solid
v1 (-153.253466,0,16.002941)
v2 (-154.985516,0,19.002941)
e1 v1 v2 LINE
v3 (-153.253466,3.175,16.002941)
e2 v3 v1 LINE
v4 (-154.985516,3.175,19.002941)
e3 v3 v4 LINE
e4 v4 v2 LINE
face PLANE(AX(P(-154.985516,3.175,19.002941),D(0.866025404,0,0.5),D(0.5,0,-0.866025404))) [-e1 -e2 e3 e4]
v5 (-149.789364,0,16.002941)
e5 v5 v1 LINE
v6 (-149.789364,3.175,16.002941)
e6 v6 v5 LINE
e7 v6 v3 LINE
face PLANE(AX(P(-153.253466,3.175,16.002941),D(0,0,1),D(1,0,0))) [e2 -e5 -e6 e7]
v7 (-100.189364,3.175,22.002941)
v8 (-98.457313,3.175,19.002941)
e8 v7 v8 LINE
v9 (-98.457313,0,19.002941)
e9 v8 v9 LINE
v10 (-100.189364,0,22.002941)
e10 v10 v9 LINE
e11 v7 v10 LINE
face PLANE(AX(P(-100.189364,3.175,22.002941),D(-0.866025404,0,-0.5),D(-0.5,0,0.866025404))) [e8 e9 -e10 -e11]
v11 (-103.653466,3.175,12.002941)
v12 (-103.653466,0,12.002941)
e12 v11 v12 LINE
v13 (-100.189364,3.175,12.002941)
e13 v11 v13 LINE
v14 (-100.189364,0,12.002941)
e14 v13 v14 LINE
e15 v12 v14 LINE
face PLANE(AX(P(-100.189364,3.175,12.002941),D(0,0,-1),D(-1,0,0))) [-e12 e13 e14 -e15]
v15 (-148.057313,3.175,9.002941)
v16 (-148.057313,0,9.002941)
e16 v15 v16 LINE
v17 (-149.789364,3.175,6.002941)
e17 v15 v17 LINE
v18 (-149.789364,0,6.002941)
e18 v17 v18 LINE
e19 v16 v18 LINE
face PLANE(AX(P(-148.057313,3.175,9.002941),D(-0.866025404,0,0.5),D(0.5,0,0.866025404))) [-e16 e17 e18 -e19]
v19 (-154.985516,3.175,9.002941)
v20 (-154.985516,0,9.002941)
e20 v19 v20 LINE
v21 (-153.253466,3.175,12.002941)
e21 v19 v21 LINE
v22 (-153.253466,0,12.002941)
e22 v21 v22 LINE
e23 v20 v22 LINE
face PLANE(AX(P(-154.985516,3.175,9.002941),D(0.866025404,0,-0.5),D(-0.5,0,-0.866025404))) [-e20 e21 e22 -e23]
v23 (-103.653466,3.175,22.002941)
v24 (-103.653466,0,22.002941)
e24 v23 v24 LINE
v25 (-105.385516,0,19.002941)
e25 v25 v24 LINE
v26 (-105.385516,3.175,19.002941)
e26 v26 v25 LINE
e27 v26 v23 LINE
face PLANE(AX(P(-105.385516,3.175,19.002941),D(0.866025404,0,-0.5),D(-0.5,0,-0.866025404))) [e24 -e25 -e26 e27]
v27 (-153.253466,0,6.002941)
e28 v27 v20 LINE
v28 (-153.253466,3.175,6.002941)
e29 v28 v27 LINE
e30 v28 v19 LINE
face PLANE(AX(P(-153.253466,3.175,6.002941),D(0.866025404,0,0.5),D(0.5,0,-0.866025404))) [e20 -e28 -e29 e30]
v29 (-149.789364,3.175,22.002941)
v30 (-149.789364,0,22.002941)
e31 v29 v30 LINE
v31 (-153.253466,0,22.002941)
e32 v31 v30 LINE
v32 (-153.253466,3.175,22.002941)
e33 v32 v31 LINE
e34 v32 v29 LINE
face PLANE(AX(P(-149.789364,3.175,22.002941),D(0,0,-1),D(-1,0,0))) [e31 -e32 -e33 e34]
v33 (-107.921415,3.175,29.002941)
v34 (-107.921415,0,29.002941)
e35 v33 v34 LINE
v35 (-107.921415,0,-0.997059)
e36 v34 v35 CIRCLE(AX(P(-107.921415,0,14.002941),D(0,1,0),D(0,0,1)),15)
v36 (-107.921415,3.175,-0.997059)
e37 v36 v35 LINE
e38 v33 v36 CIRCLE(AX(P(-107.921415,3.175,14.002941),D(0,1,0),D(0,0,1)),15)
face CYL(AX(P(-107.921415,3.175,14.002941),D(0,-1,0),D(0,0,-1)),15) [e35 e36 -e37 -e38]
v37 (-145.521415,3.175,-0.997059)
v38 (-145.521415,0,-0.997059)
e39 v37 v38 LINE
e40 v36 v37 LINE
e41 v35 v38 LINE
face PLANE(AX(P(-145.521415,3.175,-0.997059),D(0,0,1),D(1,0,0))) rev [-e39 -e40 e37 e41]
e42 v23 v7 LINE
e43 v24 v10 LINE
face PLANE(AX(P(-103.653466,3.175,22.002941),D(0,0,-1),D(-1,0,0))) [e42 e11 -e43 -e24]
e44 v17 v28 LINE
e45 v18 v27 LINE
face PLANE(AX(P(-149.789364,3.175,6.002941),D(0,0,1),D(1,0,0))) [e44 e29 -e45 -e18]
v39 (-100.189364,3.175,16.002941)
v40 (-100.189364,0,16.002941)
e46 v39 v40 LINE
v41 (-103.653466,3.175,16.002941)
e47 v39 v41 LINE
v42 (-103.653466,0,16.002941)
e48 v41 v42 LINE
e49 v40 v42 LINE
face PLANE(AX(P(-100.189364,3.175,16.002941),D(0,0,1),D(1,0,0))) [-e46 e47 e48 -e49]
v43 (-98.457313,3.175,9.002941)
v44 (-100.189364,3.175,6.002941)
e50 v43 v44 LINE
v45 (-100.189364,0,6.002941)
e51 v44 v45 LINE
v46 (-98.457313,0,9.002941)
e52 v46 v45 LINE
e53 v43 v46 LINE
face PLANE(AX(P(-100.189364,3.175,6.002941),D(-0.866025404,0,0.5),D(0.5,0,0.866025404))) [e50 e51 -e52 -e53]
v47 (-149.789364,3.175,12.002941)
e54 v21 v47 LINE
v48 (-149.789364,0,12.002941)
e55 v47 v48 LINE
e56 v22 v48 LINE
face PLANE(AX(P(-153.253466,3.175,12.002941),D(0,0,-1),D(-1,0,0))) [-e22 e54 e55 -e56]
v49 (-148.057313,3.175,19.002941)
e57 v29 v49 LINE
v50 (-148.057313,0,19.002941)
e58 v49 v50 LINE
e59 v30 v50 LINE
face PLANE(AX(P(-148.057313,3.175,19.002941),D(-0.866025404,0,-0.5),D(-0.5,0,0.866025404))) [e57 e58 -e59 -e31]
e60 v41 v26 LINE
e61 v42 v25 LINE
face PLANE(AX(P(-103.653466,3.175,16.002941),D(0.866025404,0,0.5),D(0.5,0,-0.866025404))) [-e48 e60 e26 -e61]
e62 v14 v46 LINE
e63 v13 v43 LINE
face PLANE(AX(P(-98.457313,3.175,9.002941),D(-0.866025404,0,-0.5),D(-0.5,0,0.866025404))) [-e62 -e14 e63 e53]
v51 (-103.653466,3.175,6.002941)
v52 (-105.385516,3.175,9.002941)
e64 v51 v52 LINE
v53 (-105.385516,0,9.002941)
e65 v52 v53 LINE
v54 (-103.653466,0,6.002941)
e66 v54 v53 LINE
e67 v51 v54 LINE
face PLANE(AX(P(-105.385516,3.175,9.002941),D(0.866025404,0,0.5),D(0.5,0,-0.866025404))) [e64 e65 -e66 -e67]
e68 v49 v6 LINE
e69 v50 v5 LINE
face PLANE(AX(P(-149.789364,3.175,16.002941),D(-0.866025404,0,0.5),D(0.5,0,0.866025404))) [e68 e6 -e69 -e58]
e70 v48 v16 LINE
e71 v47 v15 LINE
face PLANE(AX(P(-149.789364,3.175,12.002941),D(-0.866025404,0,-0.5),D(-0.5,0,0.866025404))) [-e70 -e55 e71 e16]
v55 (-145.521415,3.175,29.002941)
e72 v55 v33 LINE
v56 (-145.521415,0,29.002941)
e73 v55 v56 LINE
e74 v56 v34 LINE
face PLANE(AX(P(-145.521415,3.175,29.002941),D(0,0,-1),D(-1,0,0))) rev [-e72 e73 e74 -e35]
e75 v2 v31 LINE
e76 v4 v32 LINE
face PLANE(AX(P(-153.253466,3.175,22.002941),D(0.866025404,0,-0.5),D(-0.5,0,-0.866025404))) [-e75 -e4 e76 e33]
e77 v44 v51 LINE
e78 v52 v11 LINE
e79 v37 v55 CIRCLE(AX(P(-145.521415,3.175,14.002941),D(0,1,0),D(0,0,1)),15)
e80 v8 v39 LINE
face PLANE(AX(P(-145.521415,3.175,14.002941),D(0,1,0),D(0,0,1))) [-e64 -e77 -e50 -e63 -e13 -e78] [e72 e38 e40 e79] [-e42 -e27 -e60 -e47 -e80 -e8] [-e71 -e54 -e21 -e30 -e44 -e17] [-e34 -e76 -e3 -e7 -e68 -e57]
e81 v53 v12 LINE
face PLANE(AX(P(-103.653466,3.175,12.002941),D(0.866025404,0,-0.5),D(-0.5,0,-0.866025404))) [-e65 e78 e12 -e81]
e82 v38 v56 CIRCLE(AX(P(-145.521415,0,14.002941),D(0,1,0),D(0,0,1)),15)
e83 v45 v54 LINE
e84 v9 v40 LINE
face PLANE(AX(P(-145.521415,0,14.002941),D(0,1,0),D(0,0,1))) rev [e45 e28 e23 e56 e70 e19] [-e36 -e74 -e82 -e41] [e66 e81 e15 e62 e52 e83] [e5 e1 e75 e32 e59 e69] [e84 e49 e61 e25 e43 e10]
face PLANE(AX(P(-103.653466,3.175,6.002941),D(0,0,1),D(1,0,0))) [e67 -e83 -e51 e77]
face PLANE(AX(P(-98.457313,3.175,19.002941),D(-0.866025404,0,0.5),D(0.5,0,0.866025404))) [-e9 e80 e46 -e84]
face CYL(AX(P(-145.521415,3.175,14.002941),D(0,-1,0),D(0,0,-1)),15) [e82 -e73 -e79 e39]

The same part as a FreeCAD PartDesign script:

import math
import FreeCAD as App
import Part
import Sketcher
from FreeCAD import Vector
Q = App.Units.Quantity

doc = App.newDocument("Part")
params = doc.addObject("Spreadsheet::Sheet", "Params")
for row, (alias, value) in enumerate([
    ("sketch1_radius", "15 mm"),
    ("sketch1_width", "37.6 mm"),
    ("pad1_length", "3.175 mm"),
], start=1):
    params.set(f"A{row}", alias)
    params.set(f"B{row}", "=" + value)
    params.setAlias(f"B{row}", alias)

body = doc.addObject("PartDesign::Body", "Body")

sketch1 = body.newObject("Sketcher::SketchObject", "Sketch")
sketch1.AttachmentSupport = (doc.getObject("XZ_Plane"), [""])
sketch1.MapMode = "FlatFace"
sketch1.addGeometry(Part.LineSegment(Vector(-107.9, -1, 0), Vector(-145.5, -1, 0)), False)
sketch1.addGeometry(Part.ArcOfCircle(Part.Circle(Vector(-145.5, 14, 0), Vector(0, 0, 1), 15), math.radians(90), math.radians(270)), False)
sketch1.addGeometry(Part.LineSegment(Vector(-145.5, 29, 0), Vector(-107.9, 29, 0)), False)
sketch1.addGeometry(Part.ArcOfCircle(Part.Circle(Vector(-107.9, 14, 0), Vector(0, 0, 1), 15), math.radians(-90), math.radians(90)), False)
sketch1.addGeometry(Part.LineSegment(Vector(-103.7, 16, 0), Vector(-100.2, 16, 0)), False)
sketch1.addGeometry(Part.LineSegment(Vector(-100.2, 16, 0), Vector(-98.5, 19, 0)), False)
sketch1.addGeometry(Part.LineSegment(Vector(-98.5, 19, 0), Vector(-100.2, 22, 0)), False)
sketch1.addGeometry(Part.LineSegment(Vector(-100.2, 22, 0), Vector(-103.7, 22, 0)), False)
sketch1.addGeometry(Part.LineSegment(Vector(-103.7, 22, 0), Vector(-105.4, 19, 0)), False)
sketch1.addGeometry(Part.LineSegment(Vector(-105.4, 19, 0), Vector(-103.7, 16, 0)), False)
sketch1.addGeometry(Part.LineSegment(Vector(-153.3, 16, 0), Vector(-149.8, 16, 0)), False)
sketch1.addGeometry(Part.LineSegment(Vector(-149.8, 16, 0), Vector(-148.1, 19, 0)), False)
sketch1.addGeometry(Part.LineSegment(Vector(-148.1, 19, 0), Vector(-149.8, 22, 0)), False)
sketch1.addGeometry(Part.LineSegment(Vector(-149.8, 22, 0), Vector(-153.3, 22, 0)), False)
sketch1.addGeometry(Part.LineSegment(Vector(-153.3, 22, 0), Vector(-155, 19, 0)), False)
sketch1.addGeometry(Part.LineSegment(Vector(-155, 19, 0), Vector(-153.3, 16, 0)), False)
sketch1.addGeometry(Part.LineSegment(Vector(-100.2, 12, 0), Vector(-103.7, 12, 0)), False)
sketch1.addGeometry(Part.LineSegment(Vector(-103.7, 12, 0), Vector(-105.4, 9, 0)), False)
sketch1.addGeometry(Part.LineSegment(Vector(-105.4, 9, 0), Vector(-103.7, 6, 0)), False)
sketch1.addGeometry(Part.LineSegment(Vector(-103.7, 6, 0), Vector(-100.2, 6, 0)), False)
sketch1.addGeometry(Part.LineSegment(Vector(-100.2, 6, 0), Vector(-98.5, 9, 0)), False)
sketch1.addGeometry(Part.LineSegment(Vector(-98.5, 9, 0), Vector(-100.2, 12, 0)), False)
sketch1.addGeometry(Part.LineSegment(Vector(-149.8, 12, 0), Vector(-153.3, 12, 0)), False)
sketch1.addGeometry(Part.LineSegment(Vector(-153.3, 12, 0), Vector(-155, 9, 0)), False)
sketch1.addGeometry(Part.LineSegment(Vector(-155, 9, 0), Vector(-153.3, 6, 0)), False)
sketch1.addGeometry(Part.LineSegment(Vector(-153.3, 6, 0), Vector(-149.8, 6, 0)), False)
sketch1.addGeometry(Part.LineSegment(Vector(-149.8, 6, 0), Vector(-148.1, 9, 0)), False)
sketch1.addGeometry(Part.LineSegment(Vector(-148.1, 9, 0), Vector(-149.8, 12, 0)), False)
sketch1.addConstraint(Sketcher.Constraint("Tangent", 0, 2, 1, 2))
sketch1.addConstraint(Sketcher.Constraint("Tangent", 1, 1, 2, 1))
sketch1.addConstraint(Sketcher.Constraint("Tangent", 2, 2, 3, 2))
sketch1.addConstraint(Sketcher.Constraint("Tangent", 3, 1, 0, 1))
sketch1.addConstraint(Sketcher.Constraint("Coincident", 4, 2, 5, 1))
sketch1.addConstraint(Sketcher.Constraint("Coincident", 5, 2, 6, 1))
sketch1.addConstraint(Sketcher.Constraint("Coincident", 6, 2, 7, 1))
sketch1.addConstraint(Sketcher.Constraint("Coincident", 7, 2, 8, 1))
sketch1.addConstraint(Sketcher.Constraint("Coincident", 8, 2, 9, 1))
sketch1.addConstraint(Sketcher.Constraint("Coincident", 9, 2, 4, 1))
sketch1.addConstraint(Sketcher.Constraint("Coincident", 10, 2, 11, 1))
sketch1.addConstraint(Sketcher.Constraint("Coincident", 11, 2, 12, 1))
sketch1.addConstraint(Sketcher.Constraint("Coincident", 12, 2, 13, 1))
sketch1.addConstraint(Sketcher.Constraint("Coincident", 13, 2, 14, 1))
sketch1.addConstraint(Sketcher.Constraint("Coincident", 14, 2, 15, 1))
sketch1.addConstraint(Sketcher.Constraint("Coincident", 15, 2, 10, 1))
sketch1.addConstraint(Sketcher.Constraint("Coincident", 16, 2, 17, 1))
sketch1.addConstraint(Sketcher.Constraint("Coincident", 17, 2, 18, 1))
sketch1.addConstraint(Sketcher.Constraint("Coincident", 18, 2, 19, 1))
sketch1.addConstraint(Sketcher.Constraint("Coincident", 19, 2, 20, 1))
sketch1.addConstraint(Sketcher.Constraint("Coincident", 20, 2, 21, 1))
sketch1.addConstraint(Sketcher.Constraint("Coincident", 21, 2, 16, 1))
sketch1.addConstraint(Sketcher.Constraint("Coincident", 22, 2, 23, 1))
sketch1.addConstraint(Sketcher.Constraint("Coincident", 23, 2, 24, 1))
sketch1.addConstraint(Sketcher.Constraint("Coincident", 24, 2, 25, 1))
sketch1.addConstraint(Sketcher.Constraint("Coincident", 25, 2, 26, 1))
sketch1.addConstraint(Sketcher.Constraint("Coincident", 26, 2, 27, 1))
sketch1.addConstraint(Sketcher.Constraint("Coincident", 27, 2, 22, 1))
sketch1.addConstraint(Sketcher.Constraint("Horizontal", 0))
sketch1.addConstraint(Sketcher.Constraint("Horizontal", 2))
sketch1.addConstraint(Sketcher.Constraint("Horizontal", 4))
sketch1.addConstraint(Sketcher.Constraint("Horizontal", 7))
sketch1.addConstraint(Sketcher.Constraint("Horizontal", 10))
sketch1.addConstraint(Sketcher.Constraint("Horizontal", 13))
sketch1.addConstraint(Sketcher.Constraint("Horizontal", 16))
sketch1.addConstraint(Sketcher.Constraint("Horizontal", 19))
sketch1.addConstraint(Sketcher.Constraint("Horizontal", 22))
sketch1.addConstraint(Sketcher.Constraint("Horizontal", 25))
sketch1.addConstraint(Sketcher.Constraint("Parallel", 5, 8))
sketch1.addConstraint(Sketcher.Constraint("Parallel", 6, 9))
sketch1.addConstraint(Sketcher.Constraint("Parallel", 8, 11))
sketch1.addConstraint(Sketcher.Constraint("Parallel", 9, 12))
sketch1.addConstraint(Sketcher.Constraint("Parallel", 11, 14))
sketch1.addConstraint(Sketcher.Constraint("Parallel", 12, 15))
sketch1.addConstraint(Sketcher.Constraint("Parallel", 14, 17))
sketch1.addConstraint(Sketcher.Constraint("Parallel", 15, 18))
sketch1.addConstraint(Sketcher.Constraint("Parallel", 17, 20))
sketch1.addConstraint(Sketcher.Constraint("Parallel", 18, 21))
sketch1.addConstraint(Sketcher.Constraint("Parallel", 20, 23))
sketch1.addConstraint(Sketcher.Constraint("Parallel", 21, 24))
sketch1.addConstraint(Sketcher.Constraint("Parallel", 23, 26))
sketch1.addConstraint(Sketcher.Constraint("Parallel", 24, 27))
sketch1.addConstraint(Sketcher.Constraint("Horizontal", 5, 2, 8, 2))
sketch1.addConstraint(Sketcher.Constraint("Horizontal", 9, 2, 10, 2))
sketch1.addConstraint(Sketcher.Constraint("Horizontal", 8, 2, 11, 2))
sketch1.addConstraint(Sketcher.Constraint("Horizontal", 7, 2, 12, 2))
sketch1.addConstraint(Sketcher.Constraint("Horizontal", 11, 2, 14, 2))
sketch1.addConstraint(Sketcher.Constraint("Horizontal", 17, 2, 20, 2))
sketch1.addConstraint(Sketcher.Constraint("Horizontal", 21, 2, 22, 2))
sketch1.addConstraint(Sketcher.Constraint("Horizontal", 20, 2, 23, 2))
sketch1.addConstraint(Sketcher.Constraint("Horizontal", 19, 2, 24, 2))
sketch1.addConstraint(Sketcher.Constraint("Horizontal", 23, 2, 26, 2))
sketch1.addConstraint(Sketcher.Constraint("Vertical", 4, 2, 6, 2))
sketch1.addConstraint(Sketcher.Constraint("Vertical", 7, 2, 9, 2))
sketch1.addConstraint(Sketcher.Constraint("Vertical", 9, 2, 16, 2))
sketch1.addConstraint(Sketcher.Constraint("Vertical", 8, 2, 17, 2))
sketch1.addConstraint(Sketcher.Constraint("Vertical", 16, 2, 18, 2))
sketch1.addConstraint(Sketcher.Constraint("Vertical", 6, 2, 19, 2))
sketch1.addConstraint(Sketcher.Constraint("Vertical", 15, 2, 22, 2))
sketch1.addConstraint(Sketcher.Constraint("Vertical", 12, 2, 25, 2))
sketch1.addConstraint(Sketcher.Constraint("Equal", 7, 10))
sketch1.addConstraint(Sketcher.Constraint("Radius", 1, Q("15 mm")))
sketch1.addConstraint(Sketcher.Constraint("Angle", 5, Q("60 deg")))
sketch1.addConstraint(Sketcher.Constraint("DistanceX", 0, 2, 0, 1, Q("37.6 mm")))
sketch1.addConstraint(Sketcher.Constraint("DistanceY", 3, 3, 4, 2, Q("2 mm")))
sketch1.addConstraint(Sketcher.Constraint("DistanceY", 4, 2, 5, 2, Q("3 mm")))
sketch1.addConstraint(Sketcher.Constraint("DistanceY", 16, 2, 9, 2, Q("4 mm")))
sketch1.addConstraint(Sketcher.Constraint("DistanceX", 4, 1, 4, 2, Q("3.464102 mm")))
sketch1.addConstraint(Sketcher.Constraint("DistanceX", 3, 3, 5, 2, Q("9.464102 mm")))
sketch1.addConstraint(Sketcher.Constraint("DistanceX", 11, 2, 1, 3, Q("2.535898 mm")))
sketch1.addConstraint(Sketcher.Constraint("DistanceY", -1, 1, 1, 3, Q("14.002941 mm")))
sketch1.addConstraint(Sketcher.Constraint("DistanceX", 1, 3, -1, 1, Q("145.521415 mm")))
sketch1.setExpression("Constraints[71]", "Params.sketch1_radius")
sketch1.setExpression("Constraints[73]", "Params.sketch1_width")
pad1 = body.newObject("PartDesign::Pad", "Pad")
pad1.Profile = sketch1
pad1.setExpression("Length", "Params.pad1_length")
pad1.Reversed = True

doc.recompute()
